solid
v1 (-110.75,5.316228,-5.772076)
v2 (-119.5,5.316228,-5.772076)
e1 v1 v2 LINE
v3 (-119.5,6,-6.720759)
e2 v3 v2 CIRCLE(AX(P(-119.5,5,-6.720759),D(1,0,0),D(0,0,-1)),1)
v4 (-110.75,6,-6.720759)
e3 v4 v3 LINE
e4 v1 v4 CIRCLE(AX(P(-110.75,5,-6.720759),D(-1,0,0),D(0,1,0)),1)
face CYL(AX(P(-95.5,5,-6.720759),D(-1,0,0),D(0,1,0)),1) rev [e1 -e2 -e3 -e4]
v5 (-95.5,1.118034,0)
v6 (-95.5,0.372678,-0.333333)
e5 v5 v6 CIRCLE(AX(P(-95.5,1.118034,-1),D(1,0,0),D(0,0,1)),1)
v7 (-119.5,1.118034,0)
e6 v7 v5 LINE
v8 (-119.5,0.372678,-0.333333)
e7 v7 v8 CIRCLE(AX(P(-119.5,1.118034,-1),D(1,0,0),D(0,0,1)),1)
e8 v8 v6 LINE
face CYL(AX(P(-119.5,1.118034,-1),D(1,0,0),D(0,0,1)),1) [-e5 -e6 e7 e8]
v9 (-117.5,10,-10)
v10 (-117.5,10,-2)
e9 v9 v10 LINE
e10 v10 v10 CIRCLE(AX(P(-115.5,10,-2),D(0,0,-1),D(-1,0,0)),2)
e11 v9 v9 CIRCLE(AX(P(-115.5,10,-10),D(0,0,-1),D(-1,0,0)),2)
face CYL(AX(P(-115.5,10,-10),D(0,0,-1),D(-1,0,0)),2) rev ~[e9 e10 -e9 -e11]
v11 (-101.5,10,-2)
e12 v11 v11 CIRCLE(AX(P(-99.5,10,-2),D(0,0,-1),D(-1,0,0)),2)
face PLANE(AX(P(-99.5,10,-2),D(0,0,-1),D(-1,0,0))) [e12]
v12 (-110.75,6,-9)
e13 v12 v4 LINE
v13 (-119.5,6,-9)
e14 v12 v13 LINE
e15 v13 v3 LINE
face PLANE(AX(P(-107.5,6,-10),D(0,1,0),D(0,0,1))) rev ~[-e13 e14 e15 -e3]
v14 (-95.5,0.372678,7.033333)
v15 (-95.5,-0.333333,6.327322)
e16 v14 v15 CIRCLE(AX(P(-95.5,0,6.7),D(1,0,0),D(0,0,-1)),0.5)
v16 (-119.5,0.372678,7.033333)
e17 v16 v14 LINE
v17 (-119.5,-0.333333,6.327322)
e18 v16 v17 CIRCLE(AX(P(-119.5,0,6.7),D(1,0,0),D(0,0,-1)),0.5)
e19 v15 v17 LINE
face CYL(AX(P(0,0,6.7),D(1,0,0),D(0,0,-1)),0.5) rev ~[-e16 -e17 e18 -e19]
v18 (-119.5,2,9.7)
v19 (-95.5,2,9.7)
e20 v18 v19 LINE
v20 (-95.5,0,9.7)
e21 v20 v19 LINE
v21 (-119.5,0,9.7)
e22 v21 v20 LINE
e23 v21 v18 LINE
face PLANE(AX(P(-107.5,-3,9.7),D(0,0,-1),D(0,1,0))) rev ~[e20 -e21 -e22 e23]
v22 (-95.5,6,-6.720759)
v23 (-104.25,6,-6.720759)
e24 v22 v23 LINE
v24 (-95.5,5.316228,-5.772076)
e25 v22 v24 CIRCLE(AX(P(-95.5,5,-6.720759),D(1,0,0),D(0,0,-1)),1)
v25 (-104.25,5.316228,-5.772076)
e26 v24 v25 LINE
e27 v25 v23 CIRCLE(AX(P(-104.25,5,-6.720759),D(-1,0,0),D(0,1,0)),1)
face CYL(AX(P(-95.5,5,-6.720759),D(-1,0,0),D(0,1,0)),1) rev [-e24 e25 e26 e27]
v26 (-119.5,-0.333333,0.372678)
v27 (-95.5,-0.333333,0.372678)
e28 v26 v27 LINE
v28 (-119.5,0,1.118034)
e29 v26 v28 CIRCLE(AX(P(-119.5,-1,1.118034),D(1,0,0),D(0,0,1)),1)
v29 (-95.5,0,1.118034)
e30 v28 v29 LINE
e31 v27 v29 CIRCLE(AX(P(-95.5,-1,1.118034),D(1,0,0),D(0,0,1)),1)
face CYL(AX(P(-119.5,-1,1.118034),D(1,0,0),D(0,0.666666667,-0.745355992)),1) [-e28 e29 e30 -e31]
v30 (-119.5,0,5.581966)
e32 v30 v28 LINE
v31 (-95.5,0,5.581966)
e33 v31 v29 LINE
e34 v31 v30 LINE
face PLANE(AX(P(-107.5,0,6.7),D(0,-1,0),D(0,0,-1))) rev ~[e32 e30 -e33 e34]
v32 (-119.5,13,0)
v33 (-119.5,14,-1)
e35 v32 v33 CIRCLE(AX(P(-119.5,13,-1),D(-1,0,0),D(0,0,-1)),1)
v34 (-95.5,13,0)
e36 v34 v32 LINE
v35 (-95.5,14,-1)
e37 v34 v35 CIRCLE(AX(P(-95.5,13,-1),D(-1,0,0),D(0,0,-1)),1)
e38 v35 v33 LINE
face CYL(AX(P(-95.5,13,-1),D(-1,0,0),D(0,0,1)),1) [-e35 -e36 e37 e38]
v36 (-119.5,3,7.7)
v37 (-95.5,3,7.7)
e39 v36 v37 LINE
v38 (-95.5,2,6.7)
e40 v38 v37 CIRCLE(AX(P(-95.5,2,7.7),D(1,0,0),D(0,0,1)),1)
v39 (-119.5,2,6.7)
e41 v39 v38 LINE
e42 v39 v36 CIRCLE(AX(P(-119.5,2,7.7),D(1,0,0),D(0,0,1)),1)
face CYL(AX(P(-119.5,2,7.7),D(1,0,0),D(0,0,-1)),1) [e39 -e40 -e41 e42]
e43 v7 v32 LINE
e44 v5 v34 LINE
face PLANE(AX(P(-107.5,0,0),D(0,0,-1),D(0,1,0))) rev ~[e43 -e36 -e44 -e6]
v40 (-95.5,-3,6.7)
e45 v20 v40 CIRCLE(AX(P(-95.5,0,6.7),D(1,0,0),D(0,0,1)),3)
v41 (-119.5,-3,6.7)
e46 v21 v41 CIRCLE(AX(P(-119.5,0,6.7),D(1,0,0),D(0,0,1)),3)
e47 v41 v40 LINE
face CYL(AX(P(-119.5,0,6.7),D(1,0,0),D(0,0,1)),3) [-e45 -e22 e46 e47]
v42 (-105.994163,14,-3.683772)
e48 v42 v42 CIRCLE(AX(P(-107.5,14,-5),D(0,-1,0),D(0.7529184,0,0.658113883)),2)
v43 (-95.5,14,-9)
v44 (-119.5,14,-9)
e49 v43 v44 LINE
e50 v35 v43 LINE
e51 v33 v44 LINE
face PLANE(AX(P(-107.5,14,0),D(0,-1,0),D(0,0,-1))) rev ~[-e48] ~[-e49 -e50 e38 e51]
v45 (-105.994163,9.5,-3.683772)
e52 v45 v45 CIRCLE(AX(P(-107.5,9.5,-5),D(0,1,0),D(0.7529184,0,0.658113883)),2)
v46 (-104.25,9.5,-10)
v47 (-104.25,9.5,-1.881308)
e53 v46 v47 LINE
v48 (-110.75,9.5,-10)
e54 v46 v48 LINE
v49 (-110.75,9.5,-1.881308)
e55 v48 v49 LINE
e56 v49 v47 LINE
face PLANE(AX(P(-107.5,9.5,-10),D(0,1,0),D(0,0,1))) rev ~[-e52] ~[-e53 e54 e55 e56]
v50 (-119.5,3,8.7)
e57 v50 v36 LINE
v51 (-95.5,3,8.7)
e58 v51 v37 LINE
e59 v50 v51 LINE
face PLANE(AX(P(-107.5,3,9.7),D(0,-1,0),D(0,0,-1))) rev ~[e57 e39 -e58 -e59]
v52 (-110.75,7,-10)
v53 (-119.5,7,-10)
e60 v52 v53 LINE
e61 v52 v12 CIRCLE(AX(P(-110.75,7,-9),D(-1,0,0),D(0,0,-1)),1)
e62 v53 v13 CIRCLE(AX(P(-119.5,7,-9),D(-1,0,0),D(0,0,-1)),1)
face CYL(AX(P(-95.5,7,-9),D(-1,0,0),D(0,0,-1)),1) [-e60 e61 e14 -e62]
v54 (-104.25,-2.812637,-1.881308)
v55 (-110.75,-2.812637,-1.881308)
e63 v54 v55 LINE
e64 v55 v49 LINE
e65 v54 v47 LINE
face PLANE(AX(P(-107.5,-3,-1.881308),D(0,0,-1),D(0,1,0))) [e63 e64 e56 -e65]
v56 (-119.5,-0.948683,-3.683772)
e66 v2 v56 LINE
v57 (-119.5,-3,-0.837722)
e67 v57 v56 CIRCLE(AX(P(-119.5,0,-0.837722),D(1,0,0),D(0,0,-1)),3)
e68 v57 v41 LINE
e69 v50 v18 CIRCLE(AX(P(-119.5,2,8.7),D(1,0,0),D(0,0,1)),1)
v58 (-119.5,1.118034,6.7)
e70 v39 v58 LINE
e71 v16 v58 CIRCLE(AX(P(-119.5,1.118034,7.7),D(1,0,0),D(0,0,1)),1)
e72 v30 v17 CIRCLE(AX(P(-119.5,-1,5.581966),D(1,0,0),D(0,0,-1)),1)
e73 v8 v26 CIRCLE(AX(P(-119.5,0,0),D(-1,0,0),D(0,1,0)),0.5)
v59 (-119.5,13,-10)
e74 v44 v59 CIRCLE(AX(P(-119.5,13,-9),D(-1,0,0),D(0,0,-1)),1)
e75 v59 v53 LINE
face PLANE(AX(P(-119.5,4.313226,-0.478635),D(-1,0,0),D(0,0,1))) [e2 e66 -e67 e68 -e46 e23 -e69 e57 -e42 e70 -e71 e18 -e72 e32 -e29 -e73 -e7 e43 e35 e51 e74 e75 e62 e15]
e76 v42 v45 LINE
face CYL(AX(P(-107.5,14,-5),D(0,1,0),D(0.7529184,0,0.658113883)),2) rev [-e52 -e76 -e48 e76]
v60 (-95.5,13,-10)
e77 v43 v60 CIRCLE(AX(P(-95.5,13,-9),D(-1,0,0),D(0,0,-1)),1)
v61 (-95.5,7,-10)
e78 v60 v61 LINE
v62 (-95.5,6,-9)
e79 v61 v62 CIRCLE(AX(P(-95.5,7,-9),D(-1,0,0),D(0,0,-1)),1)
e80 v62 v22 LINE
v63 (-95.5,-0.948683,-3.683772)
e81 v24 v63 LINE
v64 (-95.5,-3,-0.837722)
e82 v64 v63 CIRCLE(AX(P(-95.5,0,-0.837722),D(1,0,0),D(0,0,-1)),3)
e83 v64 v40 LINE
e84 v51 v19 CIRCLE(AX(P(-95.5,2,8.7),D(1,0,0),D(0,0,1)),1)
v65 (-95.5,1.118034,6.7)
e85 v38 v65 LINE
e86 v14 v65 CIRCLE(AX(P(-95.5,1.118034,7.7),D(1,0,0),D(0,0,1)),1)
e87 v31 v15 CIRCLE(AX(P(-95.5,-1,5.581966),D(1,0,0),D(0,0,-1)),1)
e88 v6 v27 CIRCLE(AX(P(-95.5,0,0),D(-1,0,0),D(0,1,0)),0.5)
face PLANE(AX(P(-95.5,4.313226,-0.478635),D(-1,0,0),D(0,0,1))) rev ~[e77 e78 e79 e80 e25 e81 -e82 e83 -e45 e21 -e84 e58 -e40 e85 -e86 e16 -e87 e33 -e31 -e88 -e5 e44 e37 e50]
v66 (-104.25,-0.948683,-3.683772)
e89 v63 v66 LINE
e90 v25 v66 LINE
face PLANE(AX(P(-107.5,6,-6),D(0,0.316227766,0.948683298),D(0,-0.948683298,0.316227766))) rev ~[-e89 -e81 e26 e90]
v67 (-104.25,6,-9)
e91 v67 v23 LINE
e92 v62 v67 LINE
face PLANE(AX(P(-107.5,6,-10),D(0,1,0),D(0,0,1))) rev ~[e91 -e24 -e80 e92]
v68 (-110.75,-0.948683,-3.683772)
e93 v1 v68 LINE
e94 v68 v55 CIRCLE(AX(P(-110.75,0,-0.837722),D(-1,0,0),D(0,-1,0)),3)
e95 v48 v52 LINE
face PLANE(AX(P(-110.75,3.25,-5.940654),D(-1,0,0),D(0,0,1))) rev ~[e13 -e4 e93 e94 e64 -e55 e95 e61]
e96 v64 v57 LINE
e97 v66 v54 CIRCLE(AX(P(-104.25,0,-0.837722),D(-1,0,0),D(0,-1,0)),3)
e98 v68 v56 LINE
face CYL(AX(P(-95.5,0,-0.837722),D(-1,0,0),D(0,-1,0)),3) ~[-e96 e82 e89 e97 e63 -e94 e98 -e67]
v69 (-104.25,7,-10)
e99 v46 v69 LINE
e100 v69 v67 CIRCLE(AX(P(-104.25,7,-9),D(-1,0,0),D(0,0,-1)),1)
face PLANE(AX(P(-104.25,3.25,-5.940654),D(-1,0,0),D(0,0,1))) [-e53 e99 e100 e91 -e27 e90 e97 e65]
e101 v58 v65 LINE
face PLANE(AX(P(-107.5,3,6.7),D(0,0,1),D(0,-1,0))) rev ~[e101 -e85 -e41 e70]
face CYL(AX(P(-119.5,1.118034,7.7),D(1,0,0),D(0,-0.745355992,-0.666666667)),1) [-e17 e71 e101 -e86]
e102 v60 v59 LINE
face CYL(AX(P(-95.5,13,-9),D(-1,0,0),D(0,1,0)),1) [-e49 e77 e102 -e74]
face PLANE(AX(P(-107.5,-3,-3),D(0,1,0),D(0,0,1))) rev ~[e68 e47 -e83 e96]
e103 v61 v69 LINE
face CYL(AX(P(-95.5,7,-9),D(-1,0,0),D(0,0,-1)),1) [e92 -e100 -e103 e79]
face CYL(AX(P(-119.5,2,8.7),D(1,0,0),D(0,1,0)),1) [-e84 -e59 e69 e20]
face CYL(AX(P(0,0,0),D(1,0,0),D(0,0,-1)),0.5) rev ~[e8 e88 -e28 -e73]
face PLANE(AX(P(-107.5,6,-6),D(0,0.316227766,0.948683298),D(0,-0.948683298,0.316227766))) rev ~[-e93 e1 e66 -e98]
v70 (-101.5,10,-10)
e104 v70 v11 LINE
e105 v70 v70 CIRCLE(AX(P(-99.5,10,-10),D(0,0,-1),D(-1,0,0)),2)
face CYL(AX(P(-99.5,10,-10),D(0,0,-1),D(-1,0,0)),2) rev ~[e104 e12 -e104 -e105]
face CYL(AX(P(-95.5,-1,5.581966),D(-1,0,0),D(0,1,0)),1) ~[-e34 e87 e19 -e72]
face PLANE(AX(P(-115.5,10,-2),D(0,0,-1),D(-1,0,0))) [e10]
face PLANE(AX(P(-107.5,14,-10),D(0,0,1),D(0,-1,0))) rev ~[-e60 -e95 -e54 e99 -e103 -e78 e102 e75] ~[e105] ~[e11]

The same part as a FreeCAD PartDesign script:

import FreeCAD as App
import Part
import Sketcher

V = App.Vector


def edges_at(feature, points):
    """Names of the edges that pass closest to the given points."""
    edges = feature.Shape.Edges
    near = lambda p: min(range(len(edges)), key=lambda i: edges[i].distToShape(Part.Vertex(*p))[0])
    return sorted({f"Edge{near(p) + 1}" for p in points})

doc = App.newDocument("Part")
body = doc.addObject("PartDesign::Body", "Body")

# Sketch on YZ plane
sketch1 = body.newObject("Sketcher::SketchObject", "Sketch")
sketch1.AttachmentSupport = (doc.getObject("YZ_Plane"), [""])
sketch1.MapMode = "FlatFace"
sketch1.AttachmentOffset = App.Placement(V(0, 0, -107.5), App.Rotation())
sketch1.addGeometry([
    Part.LineSegment(V(0, 6.7, 0), V(3, 6.7, 0)),  # 0
    Part.LineSegment(V(3, 6.7, 0), V(3, 9.7, 0)),  # 1
    Part.LineSegment(V(3, 9.7, 0), V(-3, 9.7, 0)),  # 2
    Part.LineSegment(V(-3, 9.7, 0), V(-3, -3, 0)),  # 3
    Part.LineSegment(V(-3, -3, 0), V(6, -6, 0)),  # 4
    Part.LineSegment(V(6, -6, 0), V(6, -10, 0)),  # 5
    Part.LineSegment(V(6, -10, 0), V(14, -10, 0)),  # 6
    Part.LineSegment(V(14, -10, 0), V(14, 0, 0)),  # 7
    Part.LineSegment(V(14, 0, 0), V(0, 0, 0)),  # 8
    Part.LineSegment(V(0, 0, 0), V(0, 6.7, 0)),  # 9
], False)
sketch1.addConstraint([
    Sketcher.Constraint("Coincident", 0, 2, 1, 1),
    Sketcher.Constraint("Coincident", 1, 2, 2, 1),
    Sketcher.Constraint("Coincident", 2, 2, 3, 1),
    Sketcher.Constraint("Coincident", 3, 2, 4, 1),
    Sketcher.Constraint("Coincident", 4, 2, 5, 1),
    Sketcher.Constraint("Coincident", 5, 2, 6, 1),
    Sketcher.Constraint("Coincident", 6, 2, 7, 1),
    Sketcher.Constraint("Coincident", 7, 2, 8, 1),
    Sketcher.Constraint("Coincident", 8, 2, 9, 1),
    Sketcher.Constraint("Coincident", 9, 2, 0, 1),
    Sketcher.Constraint("Horizontal", 0),
    Sketcher.Constraint("Vertical", 1),
    Sketcher.Constraint("Horizontal", 2),
    Sketcher.Constraint("Vertical", 3),
    Sketcher.Constraint("Vertical", 5),
    Sketcher.Constraint("Horizontal", 6),
    Sketcher.Constraint("Vertical", 7),
    Sketcher.Constraint("Horizontal", 8),
    Sketcher.Constraint("Vertical", 9),
    Sketcher.Constraint("Coincident", 8, 2, -1, 1),
    Sketcher.Constraint("Equal", 0, 1),
    Sketcher.Constraint("DistanceX", 0, 1, 0, 2, 3.0),
    Sketcher.Constraint("DistanceX", 2, 2, 2, 1, 6.0),
    Sketcher.Constraint("DistanceX", 6, 1, 6, 2, 8.0),
    Sketcher.Constraint("DistanceX", 8, 2, 8, 1, 14.0),
    Sketcher.Constraint("DistanceY", 5, 2, 5, 1, 4.0),
    Sketcher.Constraint("DistanceY", 7, 1, 7, 2, 10.0),
    Sketcher.Constraint("DistanceY", 3, 2, 3, 1, 12.7),
    Sketcher.Constraint("DistanceY", 9, 1, 9, 2, 6.7),
])
pad1 = body.newObject("PartDesign::Pad", "Pad")
pad1.Profile = sketch1
pad1.Length = 24
pad1.Midplane = True
doc.recompute()

fillet = body.newObject("PartDesign::Fillet", "Fillet")
fillet.Base = (pad1, edges_at(pad1, [(-107.5, -3, -3), (-107.5, -3, 9.7)]))
fillet.Radius = 3

# Sketch on YZ plane
sketch2 = body.newObject("Sketcher::SketchObject", "Sketch001")
sketch2.AttachmentSupport = (doc.getObject("YZ_Plane"), [""])
sketch2.MapMode = "FlatFace"
sketch2.addGeometry([
    Part.Circle(V(0, 6.7, 0), V(0, 0, 1), 0.5),
    Part.Circle(V(0, 0, 0), V(0, 0, 1), 0.5),
], False)
sketch2.addConstraint([
    Sketcher.Constraint("Coincident", 1, 3, -1, 1),
    Sketcher.Constraint("Equal", 0, 1),
    Sketcher.Constraint("PointOnObject", 0, 3, -2),
    Sketcher.Constraint("Diameter", 0, 1.0),
    Sketcher.Constraint("DistanceY", -1, 1, 0, 3, 6.7),
])
pocket1 = body.newObject("PartDesign::Pocket", "Pocket")
pocket1.Profile = sketch2
pocket1.Type = "ThroughAll"
doc.recompute()

fillet2 = body.newObject("PartDesign::Fillet", "Fillet001")
fillet2.Base = (pocket1, edges_at(pocket1, [
    (-107.5, 0, 6.2),
    (-107.5, 0.5, 6.7),
    (-107.5, 0.5, 0),
    (-107.5, 0, 0.5),
]))
fillet2.Radius = 1
doc.recompute()

fillet3 = body.newObject("PartDesign::Fillet", "Fillet002")
fillet3.Base = (fillet2, edges_at(fillet2, [(-107.5, 3, 6.7), (-107.5, 3, 9.7)]))
fillet3.Radius = 1
doc.recompute()

fillet4 = body.newObject("PartDesign::Fillet", "Fillet003")
fillet4.Base = (fillet3, edges_at(fillet3, [(-107.5, 14, 0), (-107.5, 14, -10)]))
fillet4.Radius = 1
doc.recompute()

fillet5 = body.newObject("PartDesign::Fillet", "Fillet004")
fillet5.Base = (fillet4, edges_at(fillet4, [(-107.5, 6, -10), (-107.5, 6, -6)]))
fillet5.Radius = 1

# Sketch on XZ plane
sketch3 = body.newObject("Sketcher::SketchObject", "Sketch002")
sketch3.AttachmentSupport = (doc.getObject("XZ_Plane"), [""])
sketch3.MapMode = "FlatFace"
sketch3.AttachmentOffset = App.Placement(V(0, 0, -14), App.Rotation())
sketch3.addGeometry(Part.Circle(V(-107.5, -5, 0), V(0, 0, 1), 2), False)
sketch3.addConstraint([
    Sketcher.Constraint("Diameter", 0, 4.0),
    Sketcher.Constraint("DistanceY", 0, 3, -1, 1, 5.0),
    Sketcher.Constraint("DistanceX", 0, 3, -1, 1, 107.5),
])
pocket2 = body.newObject("PartDesign::Pocket", "Pocket001")
pocket2.Profile = sketch3
pocket2.Type = "ThroughAll"
pocket2.Reversed = True

# Sketch on XY plane
sketch4 = body.newObject("Sketcher::SketchObject", "Sketch003")
sketch4.AttachmentSupport = (doc.getObject("XY_Plane"), [""])
sketch4.MapMode = "FlatFace"
sketch4.AttachmentOffset = App.Placement(V(0, 0, -10), App.Rotation())
sketch4.addGeometry([
    Part.Circle(V(-115.5, 10, 0), V(0, 0, 1), 2),
    Part.Circle(V(-99.5, 10, 0), V(0, 0, 1), 2),
], False)
sketch4.addConstraint([
    Sketcher.Constraint("Equal", 0, 1),
    Sketcher.Constraint("Horizontal", 0, 3, 1, 3),
    Sketcher.Constraint("Diameter", 0, 4.0),
    Sketcher.Constraint("DistanceY", -1, 1, 0, 3, 10.0),
    Sketcher.Constraint("DistanceX", 0, 3, 1, 3, 16.0),
    Sketcher.Constraint("DistanceX", 0, 3, -1, 1, 115.5),
])
pocket3 = body.newObject("PartDesign::Pocket", "Pocket002")
pocket3.Profile = sketch4
pocket3.Length = 8
pocket3.Reversed = True

# Sketch on YZ plane
sketch5 = body.newObject("Sketcher::SketchObject", "Sketch004")
sketch5.AttachmentSupport = (doc.getObject("YZ_Plane"), [""])
sketch5.MapMode = "FlatFace"
sketch5.AttachmentOffset = App.Placement(V(0, 0, -107.5), App.Rotation())
sketch5.addGeometry([
    Part.LineSegment(V(10, -10, 0), V(10, -2, 0)),
    Part.LineSegment(V(10, -2, 0), V(-3, -2, 0)),
    Part.LineSegment(V(-3, -2, 0), V(-3, -10, 0)),
    Part.LineSegment(V(-3, -10, 0), V(10, -10, 0)),
], False)
sketch5.addConstraint([
    Sketcher.Constraint("Coincident", 0, 2, 1, 1),
    Sketcher.Constraint("Coincident", 1, 2, 2, 1),
    Sketcher.Constraint("Coincident", 2, 2, 3, 1),
    Sketcher.Constraint("Coincident", 3, 2, 0, 1),
    Sketcher.Constraint("Vertical", 0),
    Sketcher.Constraint("Horizontal", 1),
    Sketcher.Constraint("Vertical", 2),
    Sketcher.Constraint("Horizontal", 3),
    Sketcher.Constraint("DistanceX", 1, 2, 1, 1, 12.5),
    Sketcher.Constraint("DistanceX", 1, 2, -1, 1, 3.0),
    Sketcher.Constraint("DistanceY", 2, 2, -1, 1, 10.0),
    Sketcher.Constraint("DistanceY", 0, 1, 0, 2, 8.118692),
])
pocket4 = body.newObject("PartDesign::Pocket", "Pocket003")
pocket4.Profile = sketch5
pocket4.Length = 6.5
pocket4.Midplane = True

doc.recompute()
